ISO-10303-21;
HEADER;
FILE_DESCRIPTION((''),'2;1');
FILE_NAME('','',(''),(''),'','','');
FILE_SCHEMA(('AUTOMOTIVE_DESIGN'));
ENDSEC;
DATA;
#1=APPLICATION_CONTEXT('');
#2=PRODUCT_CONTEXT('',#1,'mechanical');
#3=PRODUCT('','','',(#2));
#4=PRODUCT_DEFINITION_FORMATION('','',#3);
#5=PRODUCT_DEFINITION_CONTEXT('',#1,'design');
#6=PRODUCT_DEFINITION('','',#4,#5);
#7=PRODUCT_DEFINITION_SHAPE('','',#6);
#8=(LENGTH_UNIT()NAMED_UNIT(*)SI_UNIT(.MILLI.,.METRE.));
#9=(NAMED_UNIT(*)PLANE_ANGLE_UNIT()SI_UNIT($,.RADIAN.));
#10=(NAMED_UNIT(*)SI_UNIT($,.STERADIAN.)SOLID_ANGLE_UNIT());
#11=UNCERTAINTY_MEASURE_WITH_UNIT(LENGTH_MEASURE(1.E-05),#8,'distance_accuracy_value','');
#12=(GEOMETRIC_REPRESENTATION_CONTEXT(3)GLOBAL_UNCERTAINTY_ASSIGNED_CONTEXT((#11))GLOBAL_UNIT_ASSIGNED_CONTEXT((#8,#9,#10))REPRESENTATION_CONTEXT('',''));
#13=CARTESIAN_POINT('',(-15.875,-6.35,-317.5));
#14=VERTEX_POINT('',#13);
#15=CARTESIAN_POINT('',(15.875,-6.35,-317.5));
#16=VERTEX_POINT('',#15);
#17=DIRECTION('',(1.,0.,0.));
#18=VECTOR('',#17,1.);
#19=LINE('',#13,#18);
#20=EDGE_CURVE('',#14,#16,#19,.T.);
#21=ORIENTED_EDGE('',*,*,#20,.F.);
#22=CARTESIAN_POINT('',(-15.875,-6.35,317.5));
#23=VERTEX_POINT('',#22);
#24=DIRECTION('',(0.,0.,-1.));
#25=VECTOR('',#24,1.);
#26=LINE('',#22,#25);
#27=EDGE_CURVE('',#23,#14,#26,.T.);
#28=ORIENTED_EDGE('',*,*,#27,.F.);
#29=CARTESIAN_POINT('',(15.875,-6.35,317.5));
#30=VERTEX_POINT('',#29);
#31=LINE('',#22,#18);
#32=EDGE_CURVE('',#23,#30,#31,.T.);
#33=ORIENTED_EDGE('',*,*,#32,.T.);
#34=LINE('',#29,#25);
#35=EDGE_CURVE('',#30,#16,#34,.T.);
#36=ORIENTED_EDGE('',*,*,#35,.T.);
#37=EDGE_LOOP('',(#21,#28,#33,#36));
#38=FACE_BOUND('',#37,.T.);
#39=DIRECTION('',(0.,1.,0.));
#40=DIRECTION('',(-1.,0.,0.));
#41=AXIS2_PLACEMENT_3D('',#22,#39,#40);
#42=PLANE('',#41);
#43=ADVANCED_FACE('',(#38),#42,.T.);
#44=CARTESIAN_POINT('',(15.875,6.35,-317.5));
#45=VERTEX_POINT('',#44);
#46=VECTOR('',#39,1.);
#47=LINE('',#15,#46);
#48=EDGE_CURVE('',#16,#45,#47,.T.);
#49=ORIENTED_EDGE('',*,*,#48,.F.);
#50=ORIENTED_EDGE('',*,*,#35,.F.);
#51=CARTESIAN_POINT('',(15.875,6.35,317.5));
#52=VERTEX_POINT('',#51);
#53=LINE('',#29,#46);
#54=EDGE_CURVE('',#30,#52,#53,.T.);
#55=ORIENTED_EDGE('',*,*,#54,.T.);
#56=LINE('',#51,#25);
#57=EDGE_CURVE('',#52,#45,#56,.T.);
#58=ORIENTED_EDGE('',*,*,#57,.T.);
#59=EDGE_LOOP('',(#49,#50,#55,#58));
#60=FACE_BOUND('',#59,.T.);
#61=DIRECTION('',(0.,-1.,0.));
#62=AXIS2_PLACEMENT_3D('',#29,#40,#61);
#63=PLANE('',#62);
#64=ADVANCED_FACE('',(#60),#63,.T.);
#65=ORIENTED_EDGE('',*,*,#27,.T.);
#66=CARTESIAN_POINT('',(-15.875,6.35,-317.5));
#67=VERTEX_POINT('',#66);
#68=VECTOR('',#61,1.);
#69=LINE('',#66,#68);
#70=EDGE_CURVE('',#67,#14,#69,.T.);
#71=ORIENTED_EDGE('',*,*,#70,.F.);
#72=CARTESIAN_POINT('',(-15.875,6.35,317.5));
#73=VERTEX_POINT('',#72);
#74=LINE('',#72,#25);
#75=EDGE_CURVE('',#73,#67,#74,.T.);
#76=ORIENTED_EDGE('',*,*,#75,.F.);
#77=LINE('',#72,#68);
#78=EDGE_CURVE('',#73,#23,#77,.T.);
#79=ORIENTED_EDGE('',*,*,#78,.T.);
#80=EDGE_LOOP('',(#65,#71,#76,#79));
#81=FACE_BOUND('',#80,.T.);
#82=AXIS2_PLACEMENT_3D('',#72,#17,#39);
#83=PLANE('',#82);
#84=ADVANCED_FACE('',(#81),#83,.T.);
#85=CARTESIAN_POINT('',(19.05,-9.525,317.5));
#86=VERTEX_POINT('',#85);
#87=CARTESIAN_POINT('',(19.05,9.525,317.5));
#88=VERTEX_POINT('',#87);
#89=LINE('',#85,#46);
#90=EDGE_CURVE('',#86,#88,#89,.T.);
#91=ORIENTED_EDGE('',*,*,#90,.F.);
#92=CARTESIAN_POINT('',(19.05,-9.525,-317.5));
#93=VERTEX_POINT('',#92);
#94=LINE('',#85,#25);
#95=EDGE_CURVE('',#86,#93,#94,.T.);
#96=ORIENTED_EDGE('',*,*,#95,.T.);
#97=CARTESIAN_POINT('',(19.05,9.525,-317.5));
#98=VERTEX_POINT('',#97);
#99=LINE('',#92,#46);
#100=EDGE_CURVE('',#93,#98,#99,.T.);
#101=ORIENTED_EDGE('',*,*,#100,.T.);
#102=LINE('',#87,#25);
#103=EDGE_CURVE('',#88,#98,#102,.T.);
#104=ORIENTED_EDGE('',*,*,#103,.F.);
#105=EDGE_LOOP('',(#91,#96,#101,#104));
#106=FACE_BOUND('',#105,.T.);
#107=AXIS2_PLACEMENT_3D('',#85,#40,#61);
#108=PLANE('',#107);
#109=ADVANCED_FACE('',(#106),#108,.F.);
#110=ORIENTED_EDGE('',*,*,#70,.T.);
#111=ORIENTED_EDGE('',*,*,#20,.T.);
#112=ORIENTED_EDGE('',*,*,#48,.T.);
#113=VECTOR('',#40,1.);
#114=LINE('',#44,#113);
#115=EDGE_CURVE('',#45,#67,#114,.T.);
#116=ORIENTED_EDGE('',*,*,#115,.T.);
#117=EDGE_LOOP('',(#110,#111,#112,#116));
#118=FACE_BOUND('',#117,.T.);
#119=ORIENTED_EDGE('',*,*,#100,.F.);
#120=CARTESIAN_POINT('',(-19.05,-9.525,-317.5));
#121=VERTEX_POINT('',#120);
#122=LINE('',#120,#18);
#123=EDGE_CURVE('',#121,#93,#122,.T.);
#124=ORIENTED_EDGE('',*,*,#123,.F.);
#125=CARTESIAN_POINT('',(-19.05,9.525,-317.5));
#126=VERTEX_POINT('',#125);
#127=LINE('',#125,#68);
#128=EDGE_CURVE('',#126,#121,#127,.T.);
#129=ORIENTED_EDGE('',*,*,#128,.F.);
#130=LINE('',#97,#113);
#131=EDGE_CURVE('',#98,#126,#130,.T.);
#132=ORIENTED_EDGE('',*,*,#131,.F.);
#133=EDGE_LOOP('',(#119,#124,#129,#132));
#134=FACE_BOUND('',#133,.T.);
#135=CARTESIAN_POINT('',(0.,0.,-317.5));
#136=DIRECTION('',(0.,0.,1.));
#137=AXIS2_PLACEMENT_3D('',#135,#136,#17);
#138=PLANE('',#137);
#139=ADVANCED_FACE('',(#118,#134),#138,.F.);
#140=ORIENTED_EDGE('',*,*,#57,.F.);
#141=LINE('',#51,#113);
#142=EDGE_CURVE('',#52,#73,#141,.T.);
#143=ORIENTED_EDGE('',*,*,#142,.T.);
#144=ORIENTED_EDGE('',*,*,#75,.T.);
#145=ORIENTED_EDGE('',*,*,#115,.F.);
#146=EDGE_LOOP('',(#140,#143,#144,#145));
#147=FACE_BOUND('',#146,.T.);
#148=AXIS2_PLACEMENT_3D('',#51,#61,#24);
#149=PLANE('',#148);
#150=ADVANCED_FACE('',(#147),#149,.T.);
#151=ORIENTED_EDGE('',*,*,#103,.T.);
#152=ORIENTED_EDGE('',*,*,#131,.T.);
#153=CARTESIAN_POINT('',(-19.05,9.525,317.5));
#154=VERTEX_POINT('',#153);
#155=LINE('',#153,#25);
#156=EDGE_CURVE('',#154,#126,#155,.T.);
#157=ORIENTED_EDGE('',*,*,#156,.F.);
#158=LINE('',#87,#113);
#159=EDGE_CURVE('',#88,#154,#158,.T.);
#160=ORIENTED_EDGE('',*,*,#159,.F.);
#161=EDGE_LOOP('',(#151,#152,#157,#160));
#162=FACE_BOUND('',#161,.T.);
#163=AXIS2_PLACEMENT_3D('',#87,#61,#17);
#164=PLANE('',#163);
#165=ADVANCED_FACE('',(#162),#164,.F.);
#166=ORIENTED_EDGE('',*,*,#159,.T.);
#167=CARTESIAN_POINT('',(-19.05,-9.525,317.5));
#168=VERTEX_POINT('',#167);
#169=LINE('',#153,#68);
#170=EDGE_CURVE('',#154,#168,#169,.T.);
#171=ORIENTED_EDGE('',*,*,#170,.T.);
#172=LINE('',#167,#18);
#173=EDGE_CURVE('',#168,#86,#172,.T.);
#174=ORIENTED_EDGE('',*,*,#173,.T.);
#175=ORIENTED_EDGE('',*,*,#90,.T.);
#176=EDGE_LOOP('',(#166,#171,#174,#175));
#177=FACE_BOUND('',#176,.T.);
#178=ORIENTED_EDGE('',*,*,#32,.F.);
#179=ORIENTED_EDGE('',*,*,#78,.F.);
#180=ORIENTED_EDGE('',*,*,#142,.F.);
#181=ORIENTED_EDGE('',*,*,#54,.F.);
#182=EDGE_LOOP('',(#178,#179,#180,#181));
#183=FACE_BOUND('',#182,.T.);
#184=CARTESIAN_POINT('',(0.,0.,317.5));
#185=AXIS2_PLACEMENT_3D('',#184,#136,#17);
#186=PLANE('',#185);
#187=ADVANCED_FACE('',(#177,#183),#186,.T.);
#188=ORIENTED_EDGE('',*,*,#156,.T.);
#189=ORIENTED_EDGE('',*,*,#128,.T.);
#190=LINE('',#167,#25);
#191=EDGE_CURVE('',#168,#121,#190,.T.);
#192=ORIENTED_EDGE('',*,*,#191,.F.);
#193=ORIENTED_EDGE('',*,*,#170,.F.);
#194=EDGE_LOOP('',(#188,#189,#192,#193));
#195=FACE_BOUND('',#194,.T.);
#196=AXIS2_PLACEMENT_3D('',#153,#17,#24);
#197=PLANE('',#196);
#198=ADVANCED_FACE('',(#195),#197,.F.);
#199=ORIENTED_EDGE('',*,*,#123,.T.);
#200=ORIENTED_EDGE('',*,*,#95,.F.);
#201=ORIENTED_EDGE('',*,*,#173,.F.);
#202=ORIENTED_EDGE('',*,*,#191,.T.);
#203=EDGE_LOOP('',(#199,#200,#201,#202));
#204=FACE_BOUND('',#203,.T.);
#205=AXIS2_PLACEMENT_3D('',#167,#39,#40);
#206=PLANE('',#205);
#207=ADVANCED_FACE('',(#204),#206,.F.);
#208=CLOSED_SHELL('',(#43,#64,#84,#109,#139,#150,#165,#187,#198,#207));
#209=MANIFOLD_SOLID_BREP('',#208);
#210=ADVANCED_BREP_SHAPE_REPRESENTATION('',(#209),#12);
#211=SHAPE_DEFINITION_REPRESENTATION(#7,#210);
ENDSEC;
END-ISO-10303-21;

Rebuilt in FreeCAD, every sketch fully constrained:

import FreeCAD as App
import Part
import Sketcher

V = App.Vector
Q = App.Units.Quantity

doc = App.newDocument("Part")
body = doc.addObject("PartDesign::Body", "Body")

# Sketch on XY plane
sketch1 = doc.addObject("Sketcher::SketchObject", "Sketch")
body.addObject(sketch1)
sketch1.AttachmentSupport = (doc.XY_Plane, [""])
sketch1.MapMode = "FlatFace"
sketch1.addGeometry(Part.LineSegment(V(-19.05, 9.525, 0), V(-19.05, -9.525, 0)), False)
sketch1.addGeometry(Part.LineSegment(V(-19.05, -9.525, 0), V(19.05, -9.525, 0)), False)
sketch1.addGeometry(Part.LineSegment(V(19.05, -9.525, 0), V(19.05, 9.525, 0)), False)
sketch1.addGeometry(Part.LineSegment(V(19.05, 9.525, 0), V(-19.05, 9.525, 0)), False)
sketch1.addGeometry(Part.LineSegment(V(15.875, -6.35, 0), V(-15.875, -6.35, 0)), False)
sketch1.addGeometry(Part.LineSegment(V(-15.875, -6.35, 0), V(-15.875, 6.35, 0)), False)
sketch1.addGeometry(Part.LineSegment(V(-15.875, 6.35, 0), V(15.875, 6.35, 0)), False)
sketch1.addGeometry(Part.LineSegment(V(15.875, 6.35, 0), V(15.875, -6.35, 0)), False)
sketch1.addConstraint(Sketcher.Constraint("Coincident", 0, 2, 1, 1))
sketch1.addConstraint(Sketcher.Constraint("Coincident", 1, 2, 2, 1))
sketch1.addConstraint(Sketcher.Constraint("Coincident", 2, 2, 3, 1))
sketch1.addConstraint(Sketcher.Constraint("Coincident", 3, 2, 0, 1))
sketch1.addConstraint(Sketcher.Constraint("Coincident", 4, 2, 5, 1))
sketch1.addConstraint(Sketcher.Constraint("Coincident", 5, 2, 6, 1))
sketch1.addConstraint(Sketcher.Constraint("Coincident", 6, 2, 7, 1))
sketch1.addConstraint(Sketcher.Constraint("Coincident", 7, 2, 4, 1))
sketch1.addConstraint(Sketcher.Constraint("Vertical", 0))
sketch1.addConstraint(Sketcher.Constraint("Horizontal", 1))
sketch1.addConstraint(Sketcher.Constraint("Vertical", 2))
sketch1.addConstraint(Sketcher.Constraint("Horizontal", 3))
sketch1.addConstraint(Sketcher.Constraint("Horizontal", 4))
sketch1.addConstraint(Sketcher.Constraint("Vertical", 5))
sketch1.addConstraint(Sketcher.Constraint("Horizontal", 6))
sketch1.addConstraint(Sketcher.Constraint("Vertical", 7))
sketch1.addConstraint(Sketcher.Constraint("Symmetric", 0, 2, 2, 2, -1, 1))
sketch1.addConstraint(Sketcher.Constraint("Symmetric", 4, 2, 6, 2, -1, 1))
sketch1.addConstraint(Sketcher.Constraint("DistanceX", 1, 1, 1, 2, Q("1.5 in")))
sketch1.addConstraint(Sketcher.Constraint("DistanceY", 5, 1, 5, 2, Q("0.5 in")))
sketch1.addConstraint(Sketcher.Constraint("DistanceX", 4, 2, 4, 1, Q("1.25 in")))
sketch1.addConstraint(Sketcher.Constraint("DistanceY", 0, 2, 0, 1, Q("0.75 in")))
pad1 = doc.addObject("PartDesign::Pad", "Pad")
body.addObject(pad1)
pad1.Profile = sketch1
pad1.Type = "TwoLengths"
pad1.Length = Q("12.5 in")
pad1.Length2 = Q("12.5 in")

doc.recompute()
